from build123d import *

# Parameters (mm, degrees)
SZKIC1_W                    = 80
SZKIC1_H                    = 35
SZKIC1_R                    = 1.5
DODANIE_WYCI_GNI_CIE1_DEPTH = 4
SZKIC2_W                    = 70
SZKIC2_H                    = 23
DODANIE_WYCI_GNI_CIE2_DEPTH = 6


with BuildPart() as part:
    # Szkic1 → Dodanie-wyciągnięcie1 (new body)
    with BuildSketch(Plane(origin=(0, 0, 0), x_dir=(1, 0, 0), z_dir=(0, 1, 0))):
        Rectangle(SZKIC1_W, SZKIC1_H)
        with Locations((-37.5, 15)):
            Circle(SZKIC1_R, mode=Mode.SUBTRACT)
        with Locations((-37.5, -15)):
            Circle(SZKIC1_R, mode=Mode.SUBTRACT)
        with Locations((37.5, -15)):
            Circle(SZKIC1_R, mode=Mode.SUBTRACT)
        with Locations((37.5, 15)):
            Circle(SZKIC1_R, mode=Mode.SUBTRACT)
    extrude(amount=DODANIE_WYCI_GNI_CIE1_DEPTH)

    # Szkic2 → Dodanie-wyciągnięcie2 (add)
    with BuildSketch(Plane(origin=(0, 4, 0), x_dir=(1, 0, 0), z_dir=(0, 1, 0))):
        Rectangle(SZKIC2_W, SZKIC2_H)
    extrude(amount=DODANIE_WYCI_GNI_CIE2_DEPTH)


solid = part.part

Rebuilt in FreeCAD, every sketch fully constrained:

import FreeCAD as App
import Part
import Sketcher
from FreeCAD import Vector
Q = App.Units.Quantity

doc = App.newDocument("Part")
params = doc.addObject("Spreadsheet::Sheet", "Params")
for row, (alias, value) in enumerate([
    ("sketch1_diameter", "3 mm"),
    ("sketch1_width", "80 mm"),
    ("sketch1_height", "35 mm"),
    ("pad1_length", "4 mm"),
    ("sketch2_width", "70 mm"),
    ("sketch2_height", "23 mm"),
    ("pad2_length", "6 mm"),
], start=1):
    params.set(f"A{row}", alias)
    params.set(f"B{row}", "=" + value)
    params.setAlias(f"B{row}", alias)

body = doc.addObject("PartDesign::Body", "Body")

# Sketch on XZ plane
sketch1 = body.newObject("Sketcher::SketchObject", "Sketch")
sketch1.AttachmentSupport = (doc.getObject("XZ_Plane"), [""])
sketch1.MapMode = "FlatFace"
sketch1.addGeometry([
    Part.LineSegment(Vector(-40, -17.5, 0), Vector(-40, 17.5, 0)),  # 0
    Part.LineSegment(Vector(-40, 17.5, 0), Vector(40, 17.5, 0)),  # 1
    Part.LineSegment(Vector(40, 17.5, 0), Vector(40, -17.5, 0)),  # 2
    Part.LineSegment(Vector(40, -17.5, 0), Vector(-40, -17.5, 0)),  # 3
    Part.Circle(Vector(-37.5, 15, 0), Vector(0, 0, 1), 1.5),  # 4
    Part.Circle(Vector(37.5, 15, 0), Vector(0, 0, 1), 1.5),  # 5
    Part.Circle(Vector(-37.5, -15, 0), Vector(0, 0, 1), 1.5),  # 6
    Part.Circle(Vector(37.5, -15, 0), Vector(0, 0, 1), 1.5),  # 7
], False)
sketch1.addConstraint([
    Sketcher.Constraint("Coincident", 0, 2, 1, 1),
    Sketcher.Constraint("Coincident", 1, 2, 2, 1),
    Sketcher.Constraint("Coincident", 2, 2, 3, 1),
    Sketcher.Constraint("Coincident", 3, 2, 0, 1),
    Sketcher.Constraint("Vertical", 0),
    Sketcher.Constraint("Horizontal", 1),
    Sketcher.Constraint("Vertical", 2),
    Sketcher.Constraint("Horizontal", 3),
    Sketcher.Constraint("Equal", 4, 5),
    Sketcher.Constraint("Equal", 5, 6),
    Sketcher.Constraint("Equal", 6, 7),
    Sketcher.Constraint("Symmetric", 5, 3, 6, 3, -1, 1),
    Sketcher.Constraint("Symmetric", 4, 3, 7, 3, -1, 1),
    Sketcher.Constraint("Symmetric", 0, 2, 2, 2, -1, 1),
    Sketcher.Constraint("Symmetric", 4, 3, 5, 3, -2),
    Sketcher.Constraint("Diameter", 4, Q("3 mm")),
    Sketcher.Constraint("DistanceX", 1, 1, 1, 2, Q("80 mm")),
    Sketcher.Constraint("DistanceY", 0, 1, 0, 2, Q("35 mm")),
    Sketcher.Constraint("DistanceY", -1, 1, 4, 3, Q("15 mm")),
    Sketcher.Constraint("DistanceX", 4, 3, 5, 3, Q("75 mm")),
])
sketch1.setExpression("Constraints[15]", "Params.sketch1_diameter")
sketch1.setExpression("Constraints[16]", "Params.sketch1_width")
sketch1.setExpression("Constraints[17]", "Params.sketch1_height")
pad1 = body.newObject("PartDesign::Pad", "Pad")
pad1.Profile = sketch1
pad1.setExpression("Length", "Params.pad1_length")
pad1.Reversed = True

# Sketch on XZ plane
sketch2 = body.newObject("Sketcher::SketchObject", "Sketch001")
sketch2.AttachmentSupport = (doc.getObject("XZ_Plane"), [""])
sketch2.MapMode = "FlatFace"
sketch2.AttachmentOffset = App.Placement(Vector(0, 0, -4), App.Rotation())
sketch2.addGeometry([
    Part.LineSegment(Vector(-35, -11.5, 0), Vector(-35, 11.5, 0)),
    Part.LineSegment(Vector(-35, 11.5, 0), Vector(35, 11.5, 0)),
    Part.LineSegment(Vector(35, 11.5, 0), Vector(35, -11.5, 0)),
    Part.LineSegment(Vector(35, -11.5, 0), Vector(-35, -11.5, 0)),
], False)
sketch2.addConstraint([
    Sketcher.Constraint("Coincident", 0, 2, 1, 1),
    Sketcher.Constraint("Coincident", 1, 2, 2, 1),
    Sketcher.Constraint("Coincident", 2, 2, 3, 1),
    Sketcher.Constraint("Coincident", 3, 2, 0, 1),
    Sketcher.Constraint("Vertical", 0),
    Sketcher.Constraint("Horizontal", 1),
    Sketcher.Constraint("Vertical", 2),
    Sketcher.Constraint("Horizontal", 3),
    Sketcher.Constraint("Symmetric", 0, 2, 2, 2, -1, 1),
    Sketcher.Constraint("DistanceX", 1, 1, 1, 2, Q("70 mm")),
    Sketcher.Constraint("DistanceY", 0, 1, 0, 2, Q("23 mm")),
])
sketch2.setExpression("Constraints[9]", "Params.sketch2_width")
sketch2.setExpression("Constraints[10]", "Params.sketch2_height")
pad2 = body.newObject("PartDesign::Pad", "Pad001")
pad2.Profile = sketch2
pad2.setExpression("Length", "Params.pad2_length")
pad2.Reversed = True

doc.recompute()
